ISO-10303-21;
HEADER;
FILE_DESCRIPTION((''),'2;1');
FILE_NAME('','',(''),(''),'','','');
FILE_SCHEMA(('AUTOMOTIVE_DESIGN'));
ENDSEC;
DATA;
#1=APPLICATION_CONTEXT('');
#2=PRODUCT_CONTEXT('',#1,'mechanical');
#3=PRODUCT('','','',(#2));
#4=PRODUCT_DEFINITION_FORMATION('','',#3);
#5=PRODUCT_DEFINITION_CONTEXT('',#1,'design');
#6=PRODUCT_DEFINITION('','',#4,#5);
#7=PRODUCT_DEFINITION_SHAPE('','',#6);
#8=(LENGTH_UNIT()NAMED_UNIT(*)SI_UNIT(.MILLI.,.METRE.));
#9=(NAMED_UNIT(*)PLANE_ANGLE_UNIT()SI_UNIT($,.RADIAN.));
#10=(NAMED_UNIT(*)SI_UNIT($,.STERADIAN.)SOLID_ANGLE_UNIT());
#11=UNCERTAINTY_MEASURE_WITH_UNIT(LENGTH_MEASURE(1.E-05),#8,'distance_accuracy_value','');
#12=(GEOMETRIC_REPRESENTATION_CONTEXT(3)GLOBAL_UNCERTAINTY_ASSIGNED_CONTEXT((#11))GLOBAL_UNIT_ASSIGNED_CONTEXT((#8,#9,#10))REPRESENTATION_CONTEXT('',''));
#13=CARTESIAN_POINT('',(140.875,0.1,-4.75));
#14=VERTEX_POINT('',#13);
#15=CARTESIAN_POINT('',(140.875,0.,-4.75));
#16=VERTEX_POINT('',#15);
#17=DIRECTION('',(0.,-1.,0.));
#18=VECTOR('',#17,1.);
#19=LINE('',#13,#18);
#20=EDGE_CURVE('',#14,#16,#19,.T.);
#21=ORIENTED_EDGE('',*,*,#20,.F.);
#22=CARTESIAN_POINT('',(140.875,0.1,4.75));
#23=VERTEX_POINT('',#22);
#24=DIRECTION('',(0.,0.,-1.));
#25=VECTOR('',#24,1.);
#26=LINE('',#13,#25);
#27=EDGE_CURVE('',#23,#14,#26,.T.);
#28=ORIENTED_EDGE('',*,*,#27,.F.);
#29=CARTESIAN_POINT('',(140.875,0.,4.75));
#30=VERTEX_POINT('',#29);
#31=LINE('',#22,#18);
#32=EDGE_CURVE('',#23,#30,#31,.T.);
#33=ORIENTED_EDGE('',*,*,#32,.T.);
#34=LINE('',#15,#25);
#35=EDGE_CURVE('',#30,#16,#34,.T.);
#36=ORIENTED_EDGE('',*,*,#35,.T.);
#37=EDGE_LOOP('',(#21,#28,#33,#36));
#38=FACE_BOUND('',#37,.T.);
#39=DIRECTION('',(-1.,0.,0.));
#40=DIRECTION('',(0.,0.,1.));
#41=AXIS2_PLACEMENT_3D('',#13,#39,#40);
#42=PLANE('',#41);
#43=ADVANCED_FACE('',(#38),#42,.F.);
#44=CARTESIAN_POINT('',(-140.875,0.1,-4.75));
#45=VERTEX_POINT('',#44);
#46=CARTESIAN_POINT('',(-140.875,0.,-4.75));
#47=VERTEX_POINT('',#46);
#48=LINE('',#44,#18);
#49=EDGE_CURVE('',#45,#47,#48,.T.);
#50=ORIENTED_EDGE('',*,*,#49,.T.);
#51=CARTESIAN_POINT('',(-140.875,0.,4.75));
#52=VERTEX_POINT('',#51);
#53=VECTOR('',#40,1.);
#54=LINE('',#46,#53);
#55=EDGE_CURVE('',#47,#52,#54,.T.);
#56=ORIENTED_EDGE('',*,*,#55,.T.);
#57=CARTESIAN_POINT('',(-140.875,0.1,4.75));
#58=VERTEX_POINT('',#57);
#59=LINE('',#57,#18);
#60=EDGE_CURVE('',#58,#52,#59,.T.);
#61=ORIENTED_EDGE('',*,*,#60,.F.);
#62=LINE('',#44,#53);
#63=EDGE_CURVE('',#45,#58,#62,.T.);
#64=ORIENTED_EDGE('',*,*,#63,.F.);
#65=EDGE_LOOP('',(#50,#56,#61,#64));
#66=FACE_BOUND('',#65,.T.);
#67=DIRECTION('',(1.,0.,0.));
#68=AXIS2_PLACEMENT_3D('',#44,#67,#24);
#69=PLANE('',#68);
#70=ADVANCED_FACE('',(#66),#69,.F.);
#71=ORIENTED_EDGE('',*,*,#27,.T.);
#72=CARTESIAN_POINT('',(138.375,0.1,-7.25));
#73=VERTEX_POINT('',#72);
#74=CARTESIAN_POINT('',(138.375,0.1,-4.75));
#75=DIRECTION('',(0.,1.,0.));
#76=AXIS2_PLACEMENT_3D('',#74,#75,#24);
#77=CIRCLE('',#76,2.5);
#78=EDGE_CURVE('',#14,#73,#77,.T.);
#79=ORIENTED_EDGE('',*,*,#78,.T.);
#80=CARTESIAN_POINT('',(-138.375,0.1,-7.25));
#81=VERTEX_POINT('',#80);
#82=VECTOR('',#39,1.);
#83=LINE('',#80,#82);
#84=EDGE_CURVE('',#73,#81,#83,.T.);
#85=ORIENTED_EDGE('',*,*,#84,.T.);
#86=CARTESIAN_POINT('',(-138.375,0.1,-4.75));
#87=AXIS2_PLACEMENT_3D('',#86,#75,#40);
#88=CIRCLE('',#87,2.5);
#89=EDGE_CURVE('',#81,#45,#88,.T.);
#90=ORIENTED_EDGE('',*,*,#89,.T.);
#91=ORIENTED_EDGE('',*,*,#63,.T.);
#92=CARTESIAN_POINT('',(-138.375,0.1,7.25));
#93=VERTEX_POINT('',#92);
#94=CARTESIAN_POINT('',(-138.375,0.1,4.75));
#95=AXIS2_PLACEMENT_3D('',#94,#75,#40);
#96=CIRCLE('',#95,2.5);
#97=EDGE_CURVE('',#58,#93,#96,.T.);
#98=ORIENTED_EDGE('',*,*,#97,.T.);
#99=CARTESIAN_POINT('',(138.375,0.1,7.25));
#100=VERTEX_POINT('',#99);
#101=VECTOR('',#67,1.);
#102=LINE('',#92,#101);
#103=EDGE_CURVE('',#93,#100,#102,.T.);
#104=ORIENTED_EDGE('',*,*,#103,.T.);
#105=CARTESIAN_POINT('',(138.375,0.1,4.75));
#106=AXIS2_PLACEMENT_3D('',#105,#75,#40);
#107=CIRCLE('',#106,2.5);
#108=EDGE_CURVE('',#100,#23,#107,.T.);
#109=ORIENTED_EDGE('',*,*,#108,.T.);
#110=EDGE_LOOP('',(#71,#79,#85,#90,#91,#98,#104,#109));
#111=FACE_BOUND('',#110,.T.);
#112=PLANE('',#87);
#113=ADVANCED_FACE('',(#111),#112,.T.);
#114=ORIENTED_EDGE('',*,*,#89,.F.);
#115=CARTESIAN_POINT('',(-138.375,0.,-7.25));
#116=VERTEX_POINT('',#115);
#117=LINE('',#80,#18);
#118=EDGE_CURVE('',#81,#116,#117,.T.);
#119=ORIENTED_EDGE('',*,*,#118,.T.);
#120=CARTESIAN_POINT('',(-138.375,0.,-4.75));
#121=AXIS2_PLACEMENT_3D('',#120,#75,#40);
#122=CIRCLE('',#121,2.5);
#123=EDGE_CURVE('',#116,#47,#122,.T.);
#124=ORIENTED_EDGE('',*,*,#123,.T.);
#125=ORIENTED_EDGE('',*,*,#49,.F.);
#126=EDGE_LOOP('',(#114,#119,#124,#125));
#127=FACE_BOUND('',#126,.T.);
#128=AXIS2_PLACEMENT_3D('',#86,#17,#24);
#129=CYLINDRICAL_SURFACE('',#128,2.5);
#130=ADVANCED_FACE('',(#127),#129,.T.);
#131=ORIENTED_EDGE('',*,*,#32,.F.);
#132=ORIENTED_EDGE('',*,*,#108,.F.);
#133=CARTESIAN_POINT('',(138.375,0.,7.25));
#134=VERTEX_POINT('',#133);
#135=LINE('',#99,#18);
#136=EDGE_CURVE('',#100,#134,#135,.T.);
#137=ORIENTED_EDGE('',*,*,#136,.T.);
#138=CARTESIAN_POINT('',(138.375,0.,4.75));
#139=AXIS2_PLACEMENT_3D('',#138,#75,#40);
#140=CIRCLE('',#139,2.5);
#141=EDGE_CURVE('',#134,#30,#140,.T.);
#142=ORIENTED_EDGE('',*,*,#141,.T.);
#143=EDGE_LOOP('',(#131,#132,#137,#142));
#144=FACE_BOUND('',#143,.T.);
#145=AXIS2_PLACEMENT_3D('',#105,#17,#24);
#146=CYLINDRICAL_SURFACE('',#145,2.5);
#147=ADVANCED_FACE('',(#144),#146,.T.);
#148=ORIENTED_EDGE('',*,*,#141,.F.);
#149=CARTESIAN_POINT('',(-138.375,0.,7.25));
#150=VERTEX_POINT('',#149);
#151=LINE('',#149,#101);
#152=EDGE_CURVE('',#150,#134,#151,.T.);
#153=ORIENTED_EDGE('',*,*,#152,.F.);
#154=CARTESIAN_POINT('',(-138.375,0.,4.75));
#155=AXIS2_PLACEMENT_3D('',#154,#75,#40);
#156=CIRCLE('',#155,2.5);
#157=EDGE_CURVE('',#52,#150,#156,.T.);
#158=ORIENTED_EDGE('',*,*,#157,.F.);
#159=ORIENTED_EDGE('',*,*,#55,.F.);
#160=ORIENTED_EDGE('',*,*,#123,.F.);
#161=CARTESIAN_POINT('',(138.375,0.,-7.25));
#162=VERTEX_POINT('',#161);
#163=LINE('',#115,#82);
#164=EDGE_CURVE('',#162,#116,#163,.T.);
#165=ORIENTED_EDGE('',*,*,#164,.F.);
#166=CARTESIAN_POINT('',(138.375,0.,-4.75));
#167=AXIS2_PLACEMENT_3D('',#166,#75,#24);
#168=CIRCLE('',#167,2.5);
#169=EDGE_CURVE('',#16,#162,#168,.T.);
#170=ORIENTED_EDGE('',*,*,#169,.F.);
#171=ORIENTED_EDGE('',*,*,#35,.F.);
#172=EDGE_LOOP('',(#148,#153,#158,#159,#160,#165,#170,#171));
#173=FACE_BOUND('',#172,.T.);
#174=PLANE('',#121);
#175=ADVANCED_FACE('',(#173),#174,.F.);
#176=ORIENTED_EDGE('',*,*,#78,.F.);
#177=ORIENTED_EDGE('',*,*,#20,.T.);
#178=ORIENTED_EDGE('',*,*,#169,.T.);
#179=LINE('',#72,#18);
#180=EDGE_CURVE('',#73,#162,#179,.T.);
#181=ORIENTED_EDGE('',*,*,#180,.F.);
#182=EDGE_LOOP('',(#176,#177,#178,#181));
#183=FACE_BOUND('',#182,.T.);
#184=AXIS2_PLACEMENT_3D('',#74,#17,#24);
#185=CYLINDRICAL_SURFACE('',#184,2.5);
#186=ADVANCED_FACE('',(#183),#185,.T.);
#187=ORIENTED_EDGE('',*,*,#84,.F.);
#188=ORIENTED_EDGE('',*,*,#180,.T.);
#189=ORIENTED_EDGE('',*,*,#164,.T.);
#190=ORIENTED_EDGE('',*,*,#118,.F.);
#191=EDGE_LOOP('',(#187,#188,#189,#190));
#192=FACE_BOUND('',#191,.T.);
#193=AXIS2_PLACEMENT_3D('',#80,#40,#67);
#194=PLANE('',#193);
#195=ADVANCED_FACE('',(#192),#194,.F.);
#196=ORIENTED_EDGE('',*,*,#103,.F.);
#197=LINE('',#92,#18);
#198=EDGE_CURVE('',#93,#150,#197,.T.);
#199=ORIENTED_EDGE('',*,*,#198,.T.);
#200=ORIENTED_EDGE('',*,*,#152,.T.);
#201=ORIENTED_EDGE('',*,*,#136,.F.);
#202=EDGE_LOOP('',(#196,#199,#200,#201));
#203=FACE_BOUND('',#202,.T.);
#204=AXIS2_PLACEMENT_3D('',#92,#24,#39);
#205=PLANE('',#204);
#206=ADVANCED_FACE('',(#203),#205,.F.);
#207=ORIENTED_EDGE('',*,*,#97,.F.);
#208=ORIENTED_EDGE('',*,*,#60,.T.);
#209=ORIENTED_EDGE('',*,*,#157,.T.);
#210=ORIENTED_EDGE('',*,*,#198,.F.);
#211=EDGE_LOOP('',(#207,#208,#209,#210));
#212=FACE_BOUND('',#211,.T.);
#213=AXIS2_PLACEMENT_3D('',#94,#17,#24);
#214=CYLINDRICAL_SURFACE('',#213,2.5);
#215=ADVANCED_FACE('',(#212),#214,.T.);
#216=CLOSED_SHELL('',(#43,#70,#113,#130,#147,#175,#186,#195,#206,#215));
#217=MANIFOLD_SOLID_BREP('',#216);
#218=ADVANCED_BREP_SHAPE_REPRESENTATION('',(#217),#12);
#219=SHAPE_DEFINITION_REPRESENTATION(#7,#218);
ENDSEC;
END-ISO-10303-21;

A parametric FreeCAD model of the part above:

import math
import FreeCAD as App
import Part
import Sketcher

V = App.Vector
Q = App.Units.Quantity

doc = App.newDocument("Part")
body = doc.addObject("PartDesign::Body", "Body")

sketch1 = doc.addObject("Sketcher::SketchObject", "Sketch")
body.addObject(sketch1)
sketch1.AttachmentSupport = (doc.XZ_Plane, [""])
sketch1.MapMode = "FlatFace"
sketch1.addGeometry([
    Part.LineSegment(V(138.4, -7.2, 0), V(-138.4, -7.2, 0)),
    Part.ArcOfCircle(Part.Circle(V(-138.4, -4.8, 0), V(0, 0, 1), 2.5), math.radians(180), math.radians(270)),
    Part.LineSegment(V(-140.9, -4.8, 0), V(-140.9, 4.8, 0)),
    Part.ArcOfCircle(Part.Circle(V(-138.4, 4.8, 0), V(0, 0, 1), 2.5), math.radians(90), math.radians(180)),
    Part.LineSegment(V(-138.4, 7.2, 0), V(138.4, 7.2, 0)),
    Part.ArcOfCircle(Part.Circle(V(138.4, 4.8, 0), V(0, 0, 1), 2.5), math.radians(0), math.radians(90)),
    Part.LineSegment(V(140.9, 4.8, 0), V(140.9, -4.8, 0)),
    Part.ArcOfCircle(Part.Circle(V(138.4, -4.8, 0), V(0, 0, 1), 2.5), math.radians(-90), math.radians(0)),
], False)
sketch1.addConstraint([
    Sketcher.Constraint("Tangent", 0, 2, 1, 2),
    Sketcher.Constraint("Tangent", 1, 1, 2, 1),
    Sketcher.Constraint("Tangent", 2, 2, 3, 2),
    Sketcher.Constraint("Tangent", 3, 1, 4, 1),
    Sketcher.Constraint("Tangent", 4, 2, 5, 2),
    Sketcher.Constraint("Tangent", 5, 1, 6, 1),
    Sketcher.Constraint("Tangent", 6, 2, 7, 2),
    Sketcher.Constraint("Tangent", 7, 1, 0, 1),
    Sketcher.Constraint("Horizontal", 0),
    Sketcher.Constraint("Vertical", 2),
    Sketcher.Constraint("Horizontal", 4),
    Sketcher.Constraint("Vertical", 6),
    Sketcher.Constraint("Equal", 1, 3),
    Sketcher.Constraint("Equal", 3, 5),
    Sketcher.Constraint("Equal", 5, 7),
    Sketcher.Constraint("Symmetric", 1, 3, 5, 3, -1, 1),
    Sketcher.Constraint("Radius", 1, Q("2.5 mm")),
    Sketcher.Constraint("DistanceY", 2, 1, 2, 2, Q("9.5 mm")),
    Sketcher.Constraint("DistanceX", 0, 2, 0, 1, Q("276.75 mm")),
])
pad1 = doc.addObject("PartDesign::Pad", "Pad")
body.addObject(pad1)
pad1.Profile = sketch1
pad1.Length = 0.1
pad1.Reversed = True

doc.recompute()
